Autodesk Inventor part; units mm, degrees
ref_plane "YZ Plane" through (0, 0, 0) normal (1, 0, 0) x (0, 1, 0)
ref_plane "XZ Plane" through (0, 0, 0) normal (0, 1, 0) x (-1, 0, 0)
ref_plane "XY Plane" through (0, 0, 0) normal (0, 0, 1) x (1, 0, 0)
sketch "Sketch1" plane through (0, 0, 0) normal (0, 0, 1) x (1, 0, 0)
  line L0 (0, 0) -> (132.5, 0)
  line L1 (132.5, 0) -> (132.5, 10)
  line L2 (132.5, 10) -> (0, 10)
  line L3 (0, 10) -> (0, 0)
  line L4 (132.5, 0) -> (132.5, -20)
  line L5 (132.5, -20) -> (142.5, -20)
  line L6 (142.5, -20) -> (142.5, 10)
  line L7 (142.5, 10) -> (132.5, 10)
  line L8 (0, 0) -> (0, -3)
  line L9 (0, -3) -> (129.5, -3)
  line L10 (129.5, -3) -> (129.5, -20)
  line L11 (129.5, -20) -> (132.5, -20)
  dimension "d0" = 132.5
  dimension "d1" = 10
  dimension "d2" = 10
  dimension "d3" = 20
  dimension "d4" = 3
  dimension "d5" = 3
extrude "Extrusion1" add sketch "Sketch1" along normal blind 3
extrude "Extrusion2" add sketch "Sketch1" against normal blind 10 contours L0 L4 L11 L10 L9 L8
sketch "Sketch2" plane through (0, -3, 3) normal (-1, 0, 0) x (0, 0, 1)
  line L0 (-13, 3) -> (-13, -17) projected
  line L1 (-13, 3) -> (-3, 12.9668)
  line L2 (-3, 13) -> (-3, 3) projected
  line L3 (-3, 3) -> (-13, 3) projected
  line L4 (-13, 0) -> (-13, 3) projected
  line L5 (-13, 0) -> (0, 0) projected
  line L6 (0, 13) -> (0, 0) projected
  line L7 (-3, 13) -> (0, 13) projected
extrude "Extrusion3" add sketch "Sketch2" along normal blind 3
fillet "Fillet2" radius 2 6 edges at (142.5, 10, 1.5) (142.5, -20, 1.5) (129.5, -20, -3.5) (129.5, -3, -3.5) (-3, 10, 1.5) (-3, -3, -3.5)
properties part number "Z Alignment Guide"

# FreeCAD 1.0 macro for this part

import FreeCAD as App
import Part
import Sketcher
from FreeCAD import Vector
Q = App.Units.Quantity


def edges_at(feature, points):
    """Names of the edges that pass closest to the given points."""
    edges = feature.Shape.Edges
    near = lambda p: min(range(len(edges)), key=lambda i: edges[i].distToShape(Part.Vertex(*p))[0])
    return sorted({f"Edge{near(p) + 1}" for p in points})

doc = App.newDocument("Part")
params = doc.addObject("Spreadsheet::Sheet", "Params")
for row, (alias, value) in enumerate([
    ("sketch1_width", "129.5 mm"),
    ("pad1_length", "3 mm"),
    ("sketch2_width", "3 mm"),
    ("sketch2_height", "20 mm"),
    ("sketch2_width2", "132.5 mm"),
    ("pad2_length", "10 mm"),
    ("sketch3_width", "3 mm"),
    ("sketch3_width2", "13 mm"),
    ("pad3_length", "3 mm"),
    ("fillet_radius", "2 mm"),
], start=1):
    params.set(f"A{row}", alias)
    params.set(f"B{row}", "=" + value)
    params.setAlias(f"B{row}", alias)

body = doc.addObject("PartDesign::Body", "Body")

sketch1 = body.newObject("Sketcher::SketchObject", "Sketch")
sketch1.AttachmentSupport = (doc.getObject("XY_Plane"), [""])
sketch1.MapMode = "FlatFace"
sketch1.addGeometry([
    Part.LineSegment(Vector(0, 10, 0), Vector(0, -3, 0)),
    Part.LineSegment(Vector(0, -3, 0), Vector(130, -3, 0)),
    Part.LineSegment(Vector(130, -3, 0), Vector(130, -20, 0)),
    Part.LineSegment(Vector(130, -20, 0), Vector(142, -20, 0)),
    Part.LineSegment(Vector(142, -20, 0), Vector(142, 10, 0)),
    Part.LineSegment(Vector(142, 10, 0), Vector(0, 10, 0)),
], False)
sketch1.addConstraint([
    Sketcher.Constraint("Coincident", 0, 2, 1, 1),
    Sketcher.Constraint("Coincident", 1, 2, 2, 1),
    Sketcher.Constraint("Coincident", 2, 2, 3, 1),
    Sketcher.Constraint("Coincident", 3, 2, 4, 1),
    Sketcher.Constraint("Coincident", 4, 2, 5, 1),
    Sketcher.Constraint("Coincident", 5, 2, 0, 1),
    Sketcher.Constraint("Vertical", 0),
    Sketcher.Constraint("Horizontal", 1),
    Sketcher.Constraint("Vertical", 2),
    Sketcher.Constraint("Horizontal", 3),
    Sketcher.Constraint("Vertical", 4),
    Sketcher.Constraint("Horizontal", 5),
    Sketcher.Constraint("PointOnObject", 0, 2, -2),
    Sketcher.Constraint("Equal", 3, 0),
    Sketcher.Constraint("DistanceY", 0, 2, -1, 1, Q("3 mm")),
    Sketcher.Constraint("DistanceY", 2, 2, -1, 1, Q("20 mm")),
    Sketcher.Constraint("DistanceY", -1, 1, 4, 2, Q("10 mm")),
    Sketcher.Constraint("DistanceX", 1, 1, 1, 2, Q("129.5 mm")),
])
sketch1.setExpression("Constraints[17]", "Params.sketch1_width")
pad1 = body.newObject("PartDesign::Pad", "Pad")
pad1.Profile = sketch1
pad1.setExpression("Length", "Params.pad1_length")

sketch2 = body.newObject("Sketcher::SketchObject", "Sketch001")
sketch2.AttachmentSupport = (doc.getObject("XY_Plane"), [""])
sketch2.MapMode = "FlatFace"
sketch2.addGeometry([
    Part.LineSegment(Vector(132.5, 0, 0), Vector(0, 0, 0)),
    Part.LineSegment(Vector(0, 0, 0), Vector(0, -3, 0)),
    Part.LineSegment(Vector(0, -3, 0), Vector(129.5, -3, 0)),
    Part.LineSegment(Vector(129.5, -3, 0), Vector(129.5, -20, 0)),
    Part.LineSegment(Vector(129.5, -20, 0), Vector(132.5, -20, 0)),
    Part.LineSegment(Vector(132.5, -20, 0), Vector(132.5, 0, 0)),
], False)
sketch2.addConstraint([
    Sketcher.Constraint("Coincident", 0, 2, 1, 1),
    Sketcher.Constraint("Coincident", 1, 2, 2, 1),
    Sketcher.Constraint("Coincident", 2, 2, 3, 1),
    Sketcher.Constraint("Coincident", 3, 2, 4, 1),
    Sketcher.Constraint("Coincident", 4, 2, 5, 1),
    Sketcher.Constraint("Coincident", 5, 2, 0, 1),
    Sketcher.Constraint("Horizontal", 0),
    Sketcher.Constraint("Vertical", 1),
    Sketcher.Constraint("Horizontal", 2),
    Sketcher.Constraint("Vertical", 3),
    Sketcher.Constraint("Horizontal", 4),
    Sketcher.Constraint("Vertical", 5),
    Sketcher.Constraint("Coincident", 0, 2, -1, 1),
    Sketcher.Constraint("Equal", 4, 1),
    Sketcher.Constraint("DistanceX", 4, 1, 4, 2, Q("3 mm")),
    Sketcher.Constraint("DistanceY", 5, 1, 5, 2, Q("20 mm")),
    Sketcher.Constraint("DistanceX", 0, 2, 0, 1, Q("132.5 mm")),
])
sketch2.setExpression("Constraints[14]", "Params.sketch2_width")
sketch2.setExpression("Constraints[15]", "Params.sketch2_height")
sketch2.setExpression("Constraints[16]", "Params.sketch2_width2")
pad2 = body.newObject("PartDesign::Pad", "Pad001")
pad2.Profile = sketch2
pad2.setExpression("Length", "Params.pad2_length")
pad2.Reversed = True

sketch3 = body.newObject("Sketcher::SketchObject", "Sketch002")
sketch3.AttachmentSupport = (doc.getObject("YZ_Plane"), [""])
sketch3.MapMode = "FlatFace"
sketch3.addGeometry([
    Part.LineSegment(Vector(10, 0, 0), Vector(9.967, 0, 0)),
    Part.LineSegment(Vector(9.967, 0, 0), Vector(0, -10, 0)),
    Part.LineSegment(Vector(0, -10, 0), Vector(-3, -10, 0)),
    Part.LineSegment(Vector(-3, -10, 0), Vector(-3, 3, 0)),
    Part.LineSegment(Vector(-3, 3, 0), Vector(10, 3, 0)),
    Part.LineSegment(Vector(10, 3, 0), Vector(10, 0, 0)),
], False)
sketch3.addConstraint([
    Sketcher.Constraint("Coincident", 0, 2, 1, 1),
    Sketcher.Constraint("Coincident", 1, 2, 2, 1),
    Sketcher.Constraint("Coincident", 2, 2, 3, 1),
    Sketcher.Constraint("Coincident", 3, 2, 4, 1),
    Sketcher.Constraint("Coincident", 4, 2, 5, 1),
    Sketcher.Constraint("Coincident", 5, 2, 0, 1),
    Sketcher.Constraint("Horizontal", 0),
    Sketcher.Constraint("Horizontal", 2),
    Sketcher.Constraint("Vertical", 3),
    Sketcher.Constraint("Horizontal", 4),
    Sketcher.Constraint("Vertical", 5),
    Sketcher.Constraint("PointOnObject", 0, 2, -1),
    Sketcher.Constraint("PointOnObject", 1, 2, -2),
    Sketcher.Constraint("Equal", 4, 3),
    Sketcher.Constraint("Equal", 2, 5),
    Sketcher.Constraint("DistanceX", 2, 2, 2, 1, Q("3 mm")),
    Sketcher.Constraint("DistanceX", 4, 1, 4, 2, Q("13 mm")),
    Sketcher.Constraint("DistanceX", 0, 2, 0, 1, Q("0.0332 mm")),
])
sketch3.setExpression("Constraints[15]", "Params.sketch3_width")
sketch3.setExpression("Constraints[16]", "Params.sketch3_width2")
pad3 = body.newObject("PartDesign::Pad", "Pad002")
pad3.Profile = sketch3
pad3.setExpression("Length", "Params.pad3_length")
pad3.Reversed = True
doc.recompute()

fillet = body.newObject("PartDesign::Fillet", "Fillet")
fillet.Base = (pad3, edges_at(pad3, [
    (142.5, 10, 1.5),
    (142.5, -20, 1.5),
    (129.5, -20, -3.5),
    (129.5, -3, -3.5),
    (-3, 10, 1.5),
    (-3, -3, -3.5),
]))
fillet.setExpression("Radius", "Params.fillet_radius")

doc.recompute()
